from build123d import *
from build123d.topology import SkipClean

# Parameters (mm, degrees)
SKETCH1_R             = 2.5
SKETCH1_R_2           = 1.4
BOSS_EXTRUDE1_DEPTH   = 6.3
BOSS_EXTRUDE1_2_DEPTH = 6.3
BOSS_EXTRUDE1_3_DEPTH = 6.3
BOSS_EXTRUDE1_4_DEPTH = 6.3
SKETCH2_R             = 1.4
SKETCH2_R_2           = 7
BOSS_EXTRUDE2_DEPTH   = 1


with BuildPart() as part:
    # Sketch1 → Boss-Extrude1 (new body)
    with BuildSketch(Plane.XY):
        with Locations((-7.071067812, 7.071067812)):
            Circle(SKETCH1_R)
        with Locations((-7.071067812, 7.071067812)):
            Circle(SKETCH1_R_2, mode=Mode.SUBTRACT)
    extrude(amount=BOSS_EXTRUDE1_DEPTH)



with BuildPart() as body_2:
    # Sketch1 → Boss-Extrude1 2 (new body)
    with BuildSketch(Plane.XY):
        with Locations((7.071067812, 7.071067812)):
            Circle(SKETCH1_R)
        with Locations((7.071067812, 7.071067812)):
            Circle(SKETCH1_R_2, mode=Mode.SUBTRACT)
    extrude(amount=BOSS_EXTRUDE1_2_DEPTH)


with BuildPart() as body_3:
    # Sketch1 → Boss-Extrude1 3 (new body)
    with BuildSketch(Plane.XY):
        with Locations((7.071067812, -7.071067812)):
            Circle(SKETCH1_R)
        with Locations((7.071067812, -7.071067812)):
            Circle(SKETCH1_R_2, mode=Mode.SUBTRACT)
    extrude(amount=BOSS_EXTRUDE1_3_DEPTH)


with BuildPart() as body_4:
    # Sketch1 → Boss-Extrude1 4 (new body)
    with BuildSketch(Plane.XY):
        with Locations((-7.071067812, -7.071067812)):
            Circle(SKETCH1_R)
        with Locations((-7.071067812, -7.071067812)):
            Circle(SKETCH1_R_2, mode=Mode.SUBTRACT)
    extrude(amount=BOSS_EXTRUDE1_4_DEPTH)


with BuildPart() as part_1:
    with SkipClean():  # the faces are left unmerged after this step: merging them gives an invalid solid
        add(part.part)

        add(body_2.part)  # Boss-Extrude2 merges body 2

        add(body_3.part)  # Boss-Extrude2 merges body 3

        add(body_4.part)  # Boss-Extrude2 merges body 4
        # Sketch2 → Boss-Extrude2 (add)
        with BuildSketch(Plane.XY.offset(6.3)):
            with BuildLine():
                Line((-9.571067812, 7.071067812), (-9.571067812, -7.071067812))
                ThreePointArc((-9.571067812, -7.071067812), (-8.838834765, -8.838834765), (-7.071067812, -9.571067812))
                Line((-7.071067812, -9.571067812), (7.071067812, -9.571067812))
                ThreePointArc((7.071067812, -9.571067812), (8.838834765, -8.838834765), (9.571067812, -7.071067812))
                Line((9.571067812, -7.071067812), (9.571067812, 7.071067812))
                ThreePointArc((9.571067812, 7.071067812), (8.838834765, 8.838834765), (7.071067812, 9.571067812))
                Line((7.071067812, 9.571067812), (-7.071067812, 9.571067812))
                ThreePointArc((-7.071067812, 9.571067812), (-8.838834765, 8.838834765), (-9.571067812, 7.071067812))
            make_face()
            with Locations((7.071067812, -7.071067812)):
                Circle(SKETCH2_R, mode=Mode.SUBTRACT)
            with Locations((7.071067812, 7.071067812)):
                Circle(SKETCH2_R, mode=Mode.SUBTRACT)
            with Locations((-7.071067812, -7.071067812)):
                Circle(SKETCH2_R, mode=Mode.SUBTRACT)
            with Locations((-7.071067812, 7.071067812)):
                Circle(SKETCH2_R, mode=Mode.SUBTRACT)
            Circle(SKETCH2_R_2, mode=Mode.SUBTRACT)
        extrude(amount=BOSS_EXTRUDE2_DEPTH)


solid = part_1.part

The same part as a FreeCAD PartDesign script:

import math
import FreeCAD as App
import Part
import Sketcher
Q = App.Units.Quantity

doc = App.newDocument("Part")
params = doc.addObject("Spreadsheet::Sheet", "Params")
for row, (alias, value) in enumerate([
    ("sketch1_diameter", "5 mm"),
    ("sketch1_diameter2", "2.8 mm"),
    ("pad1_length", "6.3 mm"),
    ("sketch2_diameter", "5 mm"),
    ("sketch2_diameter2", "2.8 mm"),
    ("pad2_length", "6.3 mm"),
    ("sketch3_diameter", "5 mm"),
    ("sketch3_diameter2", "2.8 mm"),
    ("pad3_length", "6.3 mm"),
    ("sketch4_diameter", "5 mm"),
    ("sketch4_diameter2", "2.8 mm"),
    ("pad4_length", "6.3 mm"),
    ("sketch5_diameter", "14 mm"),
    ("sketch5_diameter2", "2.8 mm"),
    ("sketch5_radius", "2.5 mm"),
    ("pad5_length", "1 mm"),
], start=1):
    params.set(f"A{row}", alias)
    params.set(f"B{row}", "=" + value)
    params.setAlias(f"B{row}", alias)

body = doc.addObject("PartDesign::Body", "Body")

sketch1 = body.newObject("Sketcher::SketchObject", "Sketch")
sketch1.AttachmentSupport = (doc.getObject("XY_Plane"), [""])
sketch1.MapMode = "FlatFace"
sketch1.addGeometry([
    Part.Circle(App.Vector(-7.1, 7.1, 0), App.Vector(0, 0, 1), 2.5),
    Part.Circle(App.Vector(-7.1, 7.1, 0), App.Vector(0, 0, 1), 1.4),
], False)
sketch1.addConstraint([
    Sketcher.Constraint("Coincident", 1, 3, 0, 3),
    Sketcher.Constraint("Diameter", 0, Q("5 mm")),
    Sketcher.Constraint("Diameter", 1, Q("2.8 mm")),
    Sketcher.Constraint("DistanceX", 0, 3, -1, 1, Q("7.071068 mm")),
    Sketcher.Constraint("DistanceY", -1, 1, 0, 3, Q("7.071068 mm")),
])
sketch1.setExpression("Constraints[1]", "Params.sketch1_diameter")
sketch1.setExpression("Constraints[2]", "Params.sketch1_diameter2")
pad1 = body.newObject("PartDesign::Pad", "Pad")
pad1.Profile = sketch1
pad1.setExpression("Length", "Params.pad1_length")
body2 = doc.addObject("PartDesign::Body", "Body001")

sketch2 = body2.newObject("Sketcher::SketchObject", "Sketch001")
sketch2.AttachmentSupport = (doc.getObject("XY_Plane001"), [""])
sketch2.MapMode = "FlatFace"
sketch2.addGeometry([
    Part.Circle(App.Vector(7.1, 7.1, 0), App.Vector(0, 0, 1), 2.5),
    Part.Circle(App.Vector(7.1, 7.1, 0), App.Vector(0, 0, 1), 1.4),
], False)
sketch2.addConstraint([
    Sketcher.Constraint("Coincident", 1, 3, 0, 3),
    Sketcher.Constraint("Diameter", 0, Q("5 mm")),
    Sketcher.Constraint("Diameter", 1, Q("2.8 mm")),
    Sketcher.Constraint("DistanceX", -1, 1, 0, 3, Q("7.071068 mm")),
    Sketcher.Constraint("DistanceY", -1, 1, 0, 3, Q("7.071068 mm")),
])
sketch2.setExpression("Constraints[1]", "Params.sketch2_diameter")
sketch2.setExpression("Constraints[2]", "Params.sketch2_diameter2")
pad2 = body2.newObject("PartDesign::Pad", "Pad001")
pad2.Profile = sketch2
pad2.setExpression("Length", "Params.pad2_length")
body3 = doc.addObject("PartDesign::Body", "Body002")

sketch3 = body3.newObject("Sketcher::SketchObject", "Sketch002")
sketch3.AttachmentSupport = (doc.getObject("XY_Plane002"), [""])
sketch3.MapMode = "FlatFace"
sketch3.addGeometry([
    Part.Circle(App.Vector(7.1, -7.1, 0), App.Vector(0, 0, 1), 2.5),
    Part.Circle(App.Vector(7.1, -7.1, 0), App.Vector(0, 0, 1), 1.4),
], False)
sketch3.addConstraint([
    Sketcher.Constraint("Coincident", 1, 3, 0, 3),
    Sketcher.Constraint("Diameter", 0, Q("5 mm")),
    Sketcher.Constraint("Diameter", 1, Q("2.8 mm")),
    Sketcher.Constraint("DistanceX", -1, 1, 0, 3, Q("7.071068 mm")),
    Sketcher.Constraint("DistanceY", 0, 3, -1, 1, Q("7.071068 mm")),
])
sketch3.setExpression("Constraints[1]", "Params.sketch3_diameter")
sketch3.setExpression("Constraints[2]", "Params.sketch3_diameter2")
pad3 = body3.newObject("PartDesign::Pad", "Pad002")
pad3.Profile = sketch3
pad3.setExpression("Length", "Params.pad3_length")
body4 = doc.addObject("PartDesign::Body", "Body003")

sketch4 = body4.newObject("Sketcher::SketchObject", "Sketch003")
sketch4.AttachmentSupport = (doc.getObject("XY_Plane003"), [""])
sketch4.MapMode = "FlatFace"
sketch4.addGeometry([
    Part.Circle(App.Vector(-7.1, -7.1, 0), App.Vector(0, 0, 1), 2.5),
    Part.Circle(App.Vector(-7.1, -7.1, 0), App.Vector(0, 0, 1), 1.4),
], False)
sketch4.addConstraint([
    Sketcher.Constraint("Coincident", 1, 3, 0, 3),
    Sketcher.Constraint("Diameter", 0, Q("5 mm")),
    Sketcher.Constraint("Diameter", 1, Q("2.8 mm")),
    Sketcher.Constraint("DistanceX", 0, 3, -1, 1, Q("7.071068 mm")),
    Sketcher.Constraint("DistanceY", 0, 3, -1, 1, Q("7.071068 mm")),
])
sketch4.setExpression("Constraints[1]", "Params.sketch4_diameter")
sketch4.setExpression("Constraints[2]", "Params.sketch4_diameter2")
pad4 = body4.newObject("PartDesign::Pad", "Pad003")
pad4.Profile = sketch4
pad4.setExpression("Length", "Params.pad4_length")
body.AllowCompound = True
doc.recompute()

boolean = body.newObject("PartDesign::Boolean", "Boolean")
boolean.Type = "Fuse"
boolean.addObjects([body2])
doc.recompute()

boolean2 = body.newObject("PartDesign::Boolean", "Boolean001")
boolean2.Type = "Fuse"
boolean2.addObjects([body3])
doc.recompute()

boolean3 = body.newObject("PartDesign::Boolean", "Boolean002")
boolean3.Type = "Fuse"
boolean3.addObjects([body4])

sketch5 = body.newObject("Sketcher::SketchObject", "Sketch004")
sketch5.AttachmentSupport = (doc.getObject("XY_Plane"), [""])
sketch5.MapMode = "FlatFace"
sketch5.AttachmentOffset = App.Placement(App.Vector(0, 0, 6.3), App.Rotation())
sketch5.addGeometry([
    Part.LineSegment(App.Vector(-9.6, 7.1, 0), App.Vector(-9.6, -7.1, 0)),
    Part.ArcOfCircle(Part.Circle(App.Vector(-7.1, -7.1, 0), App.Vector(0, 0, 1), 2.5), math.radians(180), math.radians(270)),
    Part.LineSegment(App.Vector(-7.1, -9.6, 0), App.Vector(7.1, -9.6, 0)),
    Part.ArcOfCircle(Part.Circle(App.Vector(7.1, -7.1, 0), App.Vector(0, 0, 1), 2.5), math.radians(-90), math.radians(0)),
    Part.LineSegment(App.Vector(9.6, -7.1, 0), App.Vector(9.6, 7.1, 0)),
    Part.ArcOfCircle(Part.Circle(App.Vector(7.1, 7.1, 0), App.Vector(0, 0, 1), 2.5), math.radians(0), math.radians(90)),
    Part.LineSegment(App.Vector(7.1, 9.6, 0), App.Vector(-7.1, 9.6, 0)),
    Part.ArcOfCircle(Part.Circle(App.Vector(-7.1, 7.1, 0), App.Vector(0, 0, 1), 2.5), math.radians(90), math.radians(180)),
    Part.Circle(App.Vector(-7.1, -7.1, 0), App.Vector(0, 0, 1), 1.4),
    Part.Circle(App.Vector(7.1, -7.1, 0), App.Vector(0, 0, 1), 1.4),
    Part.Circle(App.Vector(-7.1, 7.1, 0), App.Vector(0, 0, 1), 1.4),
    Part.Circle(App.Vector(0, 0, 0), App.Vector(0, 0, 1), 7),
    Part.Circle(App.Vector(7.1, 7.1, 0), App.Vector(0, 0, 1), 1.4),
], False)
sketch5.addConstraint([
    Sketcher.Constraint("Tangent", 0, 2, 1, 1),
    Sketcher.Constraint("Tangent", 1, 2, 2, 1),
    Sketcher.Constraint("Tangent", 2, 2, 3, 1),
    Sketcher.Constraint("Tangent", 3, 2, 4, 1),
    Sketcher.Constraint("Tangent", 4, 2, 5, 1),
    Sketcher.Constraint("Tangent", 5, 2, 6, 1),
    Sketcher.Constraint("Tangent", 6, 2, 7, 1),
    Sketcher.Constraint("Tangent", 7, 2, 0, 1),
    Sketcher.Constraint("Vertical", 0),
    Sketcher.Constraint("Horizontal", 2),
    Sketcher.Constraint("Vertical", 4),
    Sketcher.Constraint("Horizontal", 6),
    Sketcher.Constraint("Coincident", 11, 3, -1, 1),
    Sketcher.Constraint("Coincident", 8, 3, 1, 3),
    Sketcher.Constraint("Coincident", 9, 3, 3, 3),
    Sketcher.Constraint("Coincident", 10, 3, 7, 3),
    Sketcher.Constraint("Coincident", 12, 3, 5, 3),
    Sketcher.Constraint("Equal", 1, 3),
    Sketcher.Constraint("Equal", 3, 5),
    Sketcher.Constraint("Equal", 5, 7),
    Sketcher.Constraint("Equal", 8, 9),
    Sketcher.Constraint("Equal", 9, 10),
    Sketcher.Constraint("Equal", 10, 12),
    Sketcher.Constraint("Symmetric", 1, 3, 5, 3, -1, 1),
    Sketcher.Constraint("Equal", 6, 0),
    Sketcher.Constraint("Diameter", 11, Q("14 mm")),
    Sketcher.Constraint("Diameter", 8, Q("2.8 mm")),
    Sketcher.Constraint("Radius", 1, Q("2.5 mm")),
    Sketcher.Constraint("DistanceX", 2, 1, 2, 2, Q("14.142136 mm")),
])
sketch5.setExpression("Constraints[25]", "Params.sketch5_diameter")
sketch5.setExpression("Constraints[26]", "Params.sketch5_diameter2")
sketch5.setExpression("Constraints[27]", "Params.sketch5_radius")
pad5 = body.newObject("PartDesign::Pad", "Pad004")
pad5.Profile = sketch5
pad5.setExpression("Length", "Params.pad5_length")

doc.recompute()
